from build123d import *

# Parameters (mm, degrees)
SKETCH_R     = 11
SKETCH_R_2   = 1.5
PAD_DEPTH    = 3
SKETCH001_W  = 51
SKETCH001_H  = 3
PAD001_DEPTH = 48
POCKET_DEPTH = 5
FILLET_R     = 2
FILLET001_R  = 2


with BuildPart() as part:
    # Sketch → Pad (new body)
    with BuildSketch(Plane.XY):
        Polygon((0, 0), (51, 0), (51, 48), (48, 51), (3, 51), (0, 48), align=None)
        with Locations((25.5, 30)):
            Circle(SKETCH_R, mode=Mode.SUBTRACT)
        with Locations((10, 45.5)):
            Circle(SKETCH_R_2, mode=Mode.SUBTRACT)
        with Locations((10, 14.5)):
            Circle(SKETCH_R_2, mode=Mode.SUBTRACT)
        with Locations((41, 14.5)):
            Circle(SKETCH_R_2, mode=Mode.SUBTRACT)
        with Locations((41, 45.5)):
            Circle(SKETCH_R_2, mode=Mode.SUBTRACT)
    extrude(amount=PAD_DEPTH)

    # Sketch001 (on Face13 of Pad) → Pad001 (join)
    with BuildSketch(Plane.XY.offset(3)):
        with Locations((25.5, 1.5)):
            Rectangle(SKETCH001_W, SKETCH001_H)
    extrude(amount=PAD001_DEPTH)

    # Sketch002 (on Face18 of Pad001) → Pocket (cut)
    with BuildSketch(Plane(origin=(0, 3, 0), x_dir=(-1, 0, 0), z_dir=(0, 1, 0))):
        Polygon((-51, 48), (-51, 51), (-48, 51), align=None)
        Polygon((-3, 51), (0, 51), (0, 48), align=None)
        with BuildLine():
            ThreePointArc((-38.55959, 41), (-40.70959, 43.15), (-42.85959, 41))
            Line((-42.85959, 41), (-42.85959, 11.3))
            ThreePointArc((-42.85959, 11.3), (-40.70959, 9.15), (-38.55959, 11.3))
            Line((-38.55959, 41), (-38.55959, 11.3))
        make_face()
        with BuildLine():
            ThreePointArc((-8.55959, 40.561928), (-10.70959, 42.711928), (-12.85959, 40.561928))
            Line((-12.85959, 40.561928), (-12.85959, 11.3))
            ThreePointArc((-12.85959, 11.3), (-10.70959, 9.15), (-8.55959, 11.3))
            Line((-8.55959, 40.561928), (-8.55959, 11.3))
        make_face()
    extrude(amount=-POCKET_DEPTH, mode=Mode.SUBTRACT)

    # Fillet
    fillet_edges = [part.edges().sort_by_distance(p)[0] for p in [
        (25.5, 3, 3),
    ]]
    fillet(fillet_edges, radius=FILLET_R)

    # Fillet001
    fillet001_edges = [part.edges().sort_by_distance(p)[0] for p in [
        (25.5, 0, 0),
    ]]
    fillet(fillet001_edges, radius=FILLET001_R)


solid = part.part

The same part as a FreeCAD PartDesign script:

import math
import FreeCAD as App
import Part
import Sketcher
Q = App.Units.Quantity


def edges_at(feature, points):
    """Names of the edges that pass closest to the given points."""
    edges = feature.Shape.Edges
    near = lambda p: min(range(len(edges)), key=lambda i: edges[i].distToShape(Part.Vertex(*p))[0])
    return sorted({f"Edge{near(p) + 1}" for p in points})


def add_polygon(sketch, points):
    """Adds a closed chain of lines whose ends are joined by coincident constraints."""
    first, n = sketch.GeometryCount, len(points)
    for a, b in zip(points, points[1:] + points[:1]):
        sketch.addGeometry(Part.LineSegment(App.Vector(*a, 0), App.Vector(*b, 0)), False)
    for i in range(n):
        sketch.addConstraint(Sketcher.Constraint("Coincident", first + i, 2, first + (i + 1) % n, 1))

doc = App.newDocument("Part")
body = doc.addObject("PartDesign::Body", "Body")

# Sketch on XY plane
sketch1 = body.newObject("Sketcher::SketchObject", "Sketch")
sketch1.AttachmentSupport = (doc.getObject("XY_Plane"), [""])
sketch1.MapMode = "FlatFace"
add_polygon(sketch1, [(0, 0), (51, 0), (51, 48), (48, 51), (3, 51), (0, 48)])  # lines 0-5
sketch1.addGeometry(Part.Circle(App.Vector(10, 14.5, 0), App.Vector(0, 0, 1), 1.5), False)  # 6
sketch1.addGeometry(Part.Circle(App.Vector(41, 14.5, 0), App.Vector(0, 0, 1), 1.5), False)  # 7
sketch1.addGeometry(Part.Circle(App.Vector(10, 45.5, 0), App.Vector(0, 0, 1), 1.5), False)  # 8
sketch1.addGeometry(Part.Circle(App.Vector(25.5, 30, 0), App.Vector(0, 0, 1), 11), False)  # 9
sketch1.addGeometry(Part.Circle(App.Vector(41, 45.5, 0), App.Vector(0, 0, 1), 1.5), False)  # 10
sketch1.addConstraint([
    Sketcher.Constraint("Horizontal", 0),
    Sketcher.Constraint("Vertical", 1),
    Sketcher.Constraint("Horizontal", 3),
    Sketcher.Constraint("Vertical", 5),
    Sketcher.Constraint("Coincident", 5, 2, -1, 1),
    Sketcher.Constraint("Equal", 6, 7),
    Sketcher.Constraint("Equal", 7, 8),
    Sketcher.Constraint("Equal", 8, 10),
    Sketcher.Constraint("Perpendicular", 2, 4),
    Sketcher.Constraint("Horizontal", 6, 3, 7, 3),
    Sketcher.Constraint("Horizontal", 8, 3, 10, 3),
    Sketcher.Constraint("Horizontal", 1, 2, 4, 2),
    Sketcher.Constraint("Vertical", 6, 3, 8, 3),
    Sketcher.Constraint("Vertical", 7, 3, 10, 3),
    Sketcher.Constraint("Equal", 2, 4),
    Sketcher.Constraint("Diameter", 6, Q("3 mm")),
    Sketcher.Constraint("Diameter", 9, Q("22 mm")),
    Sketcher.Constraint("DistanceX", 0, 1, 0, 2, Q("51 mm")),
    Sketcher.Constraint("DistanceX", 3, 2, 3, 1, Q("45 mm")),
    Sketcher.Constraint("DistanceY", 1, 1, 1, 2, Q("48 mm")),
    Sketcher.Constraint("DistanceX", -1, 1, 6, 3, Q("10 mm")),
    Sketcher.Constraint("DistanceX", -1, 1, 7, 3, Q("41 mm")),
    Sketcher.Constraint("DistanceY", -1, 1, 9, 3, Q("30 mm")),
    Sketcher.Constraint("DistanceY", 6, 3, 8, 3, Q("31 mm")),
    Sketcher.Constraint("DistanceY", -1, 1, 6, 3, Q("14.5 mm")),
    Sketcher.Constraint("DistanceX", -1, 1, 9, 3, Q("25.5 mm")),
])
pad1 = body.newObject("PartDesign::Pad", "Pad")
pad1.Profile = sketch1
pad1.Length = 3

# Sketch on XY plane
sketch2 = body.newObject("Sketcher::SketchObject", "Sketch001")
sketch2.AttachmentSupport = (doc.getObject("XY_Plane"), [""])
sketch2.MapMode = "FlatFace"
sketch2.AttachmentOffset = App.Placement(App.Vector(0, 0, 3), App.Rotation())
add_polygon(sketch2, [(0, 3), (0, 0), (51, 0), (51, 3)])  # lines 0-3
sketch2.addConstraint([
    Sketcher.Constraint("Vertical", 0),
    Sketcher.Constraint("Horizontal", 1),
    Sketcher.Constraint("Vertical", 2),
    Sketcher.Constraint("Horizontal", 3),
    Sketcher.Constraint("Coincident", 0, 2, -1, 1),
    Sketcher.Constraint("DistanceX", 1, 1, 1, 2, Q("51 mm")),
    Sketcher.Constraint("DistanceY", 0, 2, 0, 1, Q("3 mm")),
])
pad2 = body.newObject("PartDesign::Pad", "Pad001")
pad2.Profile = sketch2
pad2.Length = 48

# Sketch on XZ plane
sketch3 = body.newObject("Sketcher::SketchObject", "Sketch002")
sketch3.AttachmentSupport = (doc.getObject("XZ_Plane"), [""])
sketch3.MapMode = "FlatFace"
sketch3.AttachmentOffset = App.Placement(App.Vector(0, 0, -3), App.Rotation())
add_polygon(sketch3, [(51, 51), (51, 48), (48, 51)])  # lines 0-2
add_polygon(sketch3, [(0, 51), (3, 51), (0, 48)])  # lines 3-5
sketch3.addGeometry(Part.ArcOfCircle(Part.Circle(App.Vector(40.7, 41, 0), App.Vector(0, 0, 1), 2.1), math.radians(0), math.radians(180)), False)  # 6
sketch3.addGeometry(Part.LineSegment(App.Vector(42.9, 41, 0), App.Vector(42.9, 11.3, 0)), False)  # 7
sketch3.addGeometry(Part.ArcOfCircle(Part.Circle(App.Vector(40.7, 11.3, 0), App.Vector(0, 0, 1), 2.1), math.radians(180), math.radians(360)), False)  # 8
sketch3.addGeometry(Part.LineSegment(App.Vector(38.6, 11.3, 0), App.Vector(38.6, 41, 0)), False)  # 9
sketch3.addGeometry(Part.ArcOfCircle(Part.Circle(App.Vector(10.7, 40.6, 0), App.Vector(0, 0, 1), 2.1), math.radians(0), math.radians(180)), False)  # 10
sketch3.addGeometry(Part.LineSegment(App.Vector(12.9, 40.6, 0), App.Vector(12.9, 11.3, 0)), False)  # 11
sketch3.addGeometry(Part.ArcOfCircle(Part.Circle(App.Vector(10.7, 11.3, 0), App.Vector(0, 0, 1), 2.1), math.radians(180), math.radians(360)), False)  # 12
sketch3.addGeometry(Part.LineSegment(App.Vector(8.6, 11.3, 0), App.Vector(8.6, 40.6, 0)), False)  # 13
sketch3.addConstraint([
    Sketcher.Constraint("Tangent", 6, 1, 7, 1),
    Sketcher.Constraint("Tangent", 7, 2, 8, 2),
    Sketcher.Constraint("Tangent", 8, 1, 9, 1),
    Sketcher.Constraint("Tangent", 9, 2, 6, 2),
    Sketcher.Constraint("Tangent", 10, 1, 11, 1),
    Sketcher.Constraint("Tangent", 11, 2, 12, 2),
    Sketcher.Constraint("Tangent", 12, 1, 13, 1),
    Sketcher.Constraint("Tangent", 13, 2, 10, 2),
    Sketcher.Constraint("Vertical", 0),
    Sketcher.Constraint("Horizontal", 2),
    Sketcher.Constraint("Horizontal", 3),
    Sketcher.Constraint("Vertical", 5),
    Sketcher.Constraint("Vertical", 7),
    Sketcher.Constraint("Vertical", 9),
    Sketcher.Constraint("Vertical", 11),
    Sketcher.Constraint("Vertical", 13),
    Sketcher.Constraint("Equal", 8, 10),
    Sketcher.Constraint("PointOnObject", 4, 2, -2),
    Sketcher.Constraint("Perpendicular", 1, 4),
    Sketcher.Constraint("Horizontal", 8, 3, 12, 3),
    Sketcher.Constraint("Horizontal", 2, 2, 3, 2),
    Sketcher.Constraint("Horizontal", 0, 2, 4, 2),
    Sketcher.Constraint("Equal", 2, 3),
    Sketcher.Constraint("DistanceX", 2, 1, 2, 2, Q("3 mm")),
    Sketcher.Constraint("Radius", 6, Q("2.15 mm")),
    Sketcher.Constraint("DistanceY", 7, 2, 7, 1, Q("29.7 mm")),
    Sketcher.Constraint("DistanceY", -1, 1, 6, 3, Q("41 mm")),
    Sketcher.Constraint("DistanceX", -1, 1, 0, 2, Q("51 mm")),
    Sketcher.Constraint("DistanceY", -1, 1, 0, 2, Q("48 mm")),
    Sketcher.Constraint("DistanceX", 10, 3, 6, 3, Q("30 mm")),
    Sketcher.Constraint("DistanceY", 11, 2, 11, 1, Q("29.261928 mm")),
    Sketcher.Constraint("DistanceX", -1, 1, 6, 3, Q("40.70959 mm")),
])
pocket1 = body.newObject("PartDesign::Pocket", "Pocket")
pocket1.Profile = sketch3
pocket1.Length = 5
pocket1.Reversed = True
doc.recompute()

fillet = body.newObject("PartDesign::Fillet", "Fillet")
fillet.Base = (pocket1, edges_at(pocket1, [(25.5, 3, 3)]))
fillet.Radius = 2
doc.recompute()

fillet2 = body.newObject("PartDesign::Fillet", "Fillet001")
fillet2.Base = (fillet, edges_at(fillet, [(25.5, 0, 0)]))
fillet2.Radius = 2

doc.recompute()
